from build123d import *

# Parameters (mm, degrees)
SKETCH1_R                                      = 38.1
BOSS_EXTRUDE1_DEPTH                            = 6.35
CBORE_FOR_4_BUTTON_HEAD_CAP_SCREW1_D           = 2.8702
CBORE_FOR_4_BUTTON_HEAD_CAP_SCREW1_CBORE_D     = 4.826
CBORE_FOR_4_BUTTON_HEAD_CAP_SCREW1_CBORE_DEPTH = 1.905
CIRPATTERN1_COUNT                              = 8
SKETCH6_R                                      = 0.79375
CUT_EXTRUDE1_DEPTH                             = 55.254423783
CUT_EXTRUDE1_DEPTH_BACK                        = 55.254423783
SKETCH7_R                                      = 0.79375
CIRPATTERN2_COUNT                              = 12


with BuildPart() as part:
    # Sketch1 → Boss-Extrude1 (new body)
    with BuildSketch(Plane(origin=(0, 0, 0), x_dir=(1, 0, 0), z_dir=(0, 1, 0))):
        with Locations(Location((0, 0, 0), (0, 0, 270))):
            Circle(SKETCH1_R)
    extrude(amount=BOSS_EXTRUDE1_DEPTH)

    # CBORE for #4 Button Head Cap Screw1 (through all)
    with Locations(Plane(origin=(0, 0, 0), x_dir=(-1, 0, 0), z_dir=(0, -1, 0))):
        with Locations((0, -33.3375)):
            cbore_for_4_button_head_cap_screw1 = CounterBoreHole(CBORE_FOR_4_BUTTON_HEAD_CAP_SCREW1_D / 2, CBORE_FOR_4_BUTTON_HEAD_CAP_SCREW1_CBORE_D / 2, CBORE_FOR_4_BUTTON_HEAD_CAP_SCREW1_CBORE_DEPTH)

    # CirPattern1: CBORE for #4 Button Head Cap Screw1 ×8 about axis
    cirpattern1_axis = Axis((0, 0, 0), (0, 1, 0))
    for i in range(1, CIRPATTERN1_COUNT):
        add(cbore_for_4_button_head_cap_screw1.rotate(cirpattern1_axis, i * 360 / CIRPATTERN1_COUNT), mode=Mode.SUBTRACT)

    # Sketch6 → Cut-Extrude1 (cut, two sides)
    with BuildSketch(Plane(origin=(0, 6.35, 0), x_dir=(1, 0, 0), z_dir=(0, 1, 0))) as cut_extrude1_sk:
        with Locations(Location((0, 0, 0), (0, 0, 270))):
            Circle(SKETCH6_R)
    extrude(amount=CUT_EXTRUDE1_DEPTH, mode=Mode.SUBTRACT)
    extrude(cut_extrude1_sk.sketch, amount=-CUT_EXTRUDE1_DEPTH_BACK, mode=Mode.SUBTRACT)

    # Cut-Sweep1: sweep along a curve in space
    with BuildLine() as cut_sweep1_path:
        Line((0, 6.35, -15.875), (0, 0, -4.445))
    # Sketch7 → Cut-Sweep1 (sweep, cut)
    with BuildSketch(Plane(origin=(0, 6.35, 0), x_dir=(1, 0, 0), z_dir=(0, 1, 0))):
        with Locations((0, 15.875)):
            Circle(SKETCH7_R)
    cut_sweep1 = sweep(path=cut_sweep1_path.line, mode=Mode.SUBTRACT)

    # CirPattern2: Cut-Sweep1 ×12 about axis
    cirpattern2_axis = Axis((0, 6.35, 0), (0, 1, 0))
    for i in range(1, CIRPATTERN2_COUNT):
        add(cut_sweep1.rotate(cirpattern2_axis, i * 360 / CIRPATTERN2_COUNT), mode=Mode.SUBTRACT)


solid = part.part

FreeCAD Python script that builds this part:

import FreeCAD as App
import Part
import Sketcher

V = App.Vector
Q = App.Units.Quantity

doc = App.newDocument("Part")
body = doc.addObject("PartDesign::Body", "Body")

sketch1 = doc.addObject("Sketcher::SketchObject", "Sketch")
body.addObject(sketch1)
sketch1.AttachmentSupport = (doc.XZ_Plane, [""])
sketch1.MapMode = "FlatFace"
sketch1.addGeometry(Part.Circle(V(0, 0, 0), V(0, 0, 1), 38), False)
sketch1.addConstraint(Sketcher.Constraint("Coincident", 0, 3, -1, 1))
sketch1.addConstraint(Sketcher.Constraint("Diameter", 0, Q("3 in")))
pad1 = doc.addObject("PartDesign::Pad", "Pad")
body.addObject(pad1)
pad1.Profile = sketch1
pad1.Length = Q("0.25 in")
pad1.Reversed = True

sketch2 = doc.addObject("Sketcher::SketchObject", "Sketch001")
body.addObject(sketch2)
sketch2.AttachmentSupport = (doc.XZ_Plane, [""])
sketch2.MapMode = "FlatFace"
sketch2.addGeometry(Part.Circle(V(0, 33.3, 0), V(0, 0, 1), 1.4), False)
sketch2.addConstraint(Sketcher.Constraint("PointOnObject", 0, 3, -2))
sketch2.addConstraint(Sketcher.Constraint("Diameter", 0, Q("0.113 in")))
sketch2.addConstraint(Sketcher.Constraint("DistanceY", -1, 1, 0, 3, Q("1.3125 in")))
doc.recompute()
hole = doc.addObject("PartDesign::Hole", "Hole")
body.addObject(hole)
hole.Profile = sketch2
hole.ThreadType = "None"
hole.Diameter = Q("0.113 in")
hole.DepthType = "ThroughAll"
hole.HoleCutType = "Counterbore"
hole.HoleCutDiameter = Q("0.19 in")
hole.HoleCutDepth = Q("0.075 in")
doc.recompute()

polarpattern = doc.addObject("PartDesign::PolarPattern", "PolarPattern")
body.addObject(polarpattern)
polarpattern.Originals = [hole]
polarpattern.Axis = (doc.Y_Axis, [""])
polarpattern.Angle = 360
polarpattern.Occurrences = 8
body.Tip = polarpattern

sketch3 = doc.addObject("Sketcher::SketchObject", "Sketch002")
body.addObject(sketch3)
sketch3.AttachmentSupport = (doc.XZ_Plane, [""])
sketch3.MapMode = "FlatFace"
sketch3.AttachmentOffset = App.Placement(V(0, 0, -0.25 * 25.4), App.Rotation())
sketch3.addGeometry(Part.Circle(V(0, 0, 0), V(0, 0, 1), 0.8), False)
sketch3.addConstraint(Sketcher.Constraint("Coincident", 0, 3, -1, 1))
sketch3.addConstraint(Sketcher.Constraint("Diameter", 0, Q("0.0625 in")))
pocket1 = doc.addObject("PartDesign::Pocket", "Pocket")
body.addObject(pocket1)
pocket1.Profile = sketch3
pocket1.Type = "ThroughAll"
pocket1.Midplane = True

sketch4 = doc.addObject("Sketcher::SketchObject", "Sketch003")
body.addObject(sketch4)
sketch4.AttachmentSupport = (doc.XZ_Plane, [""])
sketch4.MapMode = "FlatFace"
sketch4.AttachmentOffset = App.Placement(V(0, 0, -0.25 * 25.4), App.Rotation())
sketch4.addGeometry(Part.Circle(V(0, -15.9, 0), V(0, 0, 1), 0.8), False)
sketch4.addConstraint(Sketcher.Constraint("PointOnObject", 0, 3, -2))
sketch4.addConstraint(Sketcher.Constraint("Diameter", 0, Q("0.0625 in")))
sketch4.addConstraint(Sketcher.Constraint("DistanceY", 0, 3, -1, 1, Q("0.625 in")))

sketch5 = doc.addObject("Sketcher::SketchObject", "Sketch004")
body.addObject(sketch5)
sketch5.Placement = App.Placement(V(0, -1.887028, -1.048349), App.Rotation(V(0, 0.485642931, -0.874157276), V(1, 0, 0), V(0, -0.874157276, -0.485642931), "ZXY"))
sketch5.addGeometry(Part.LineSegment(V(17, 0, 0), V(4, 0, 0)), False)
sketch5.addConstraint(Sketcher.Constraint("Horizontal", 0))
sketch5.addConstraint(Sketcher.Constraint("PointOnObject", 0, 1, -1))
sketch5.addConstraint(Sketcher.Constraint("DistanceX", 0, 2, 0, 1, 13.07545))
sketch5.addConstraint(Sketcher.Constraint("DistanceX", -1, 1, 0, 1, 16.961079))
doc.recompute()

subtractivepipe = doc.addObject("PartDesign::SubtractivePipe", "SubtractivePipe")
body.addObject(subtractivepipe)
subtractivepipe.Profile = sketch4
subtractivepipe.Spine = (sketch5, ["Edge1"])
doc.recompute()

polarpattern2 = doc.addObject("PartDesign::PolarPattern", "PolarPattern001")
body.addObject(polarpattern2)
polarpattern2.Originals = [subtractivepipe]
polarpattern2.Axis = (doc.Y_Axis, [""])
polarpattern2.Angle = 360
polarpattern2.Occurrences = 12
body.Tip = polarpattern2

doc.recompute()
